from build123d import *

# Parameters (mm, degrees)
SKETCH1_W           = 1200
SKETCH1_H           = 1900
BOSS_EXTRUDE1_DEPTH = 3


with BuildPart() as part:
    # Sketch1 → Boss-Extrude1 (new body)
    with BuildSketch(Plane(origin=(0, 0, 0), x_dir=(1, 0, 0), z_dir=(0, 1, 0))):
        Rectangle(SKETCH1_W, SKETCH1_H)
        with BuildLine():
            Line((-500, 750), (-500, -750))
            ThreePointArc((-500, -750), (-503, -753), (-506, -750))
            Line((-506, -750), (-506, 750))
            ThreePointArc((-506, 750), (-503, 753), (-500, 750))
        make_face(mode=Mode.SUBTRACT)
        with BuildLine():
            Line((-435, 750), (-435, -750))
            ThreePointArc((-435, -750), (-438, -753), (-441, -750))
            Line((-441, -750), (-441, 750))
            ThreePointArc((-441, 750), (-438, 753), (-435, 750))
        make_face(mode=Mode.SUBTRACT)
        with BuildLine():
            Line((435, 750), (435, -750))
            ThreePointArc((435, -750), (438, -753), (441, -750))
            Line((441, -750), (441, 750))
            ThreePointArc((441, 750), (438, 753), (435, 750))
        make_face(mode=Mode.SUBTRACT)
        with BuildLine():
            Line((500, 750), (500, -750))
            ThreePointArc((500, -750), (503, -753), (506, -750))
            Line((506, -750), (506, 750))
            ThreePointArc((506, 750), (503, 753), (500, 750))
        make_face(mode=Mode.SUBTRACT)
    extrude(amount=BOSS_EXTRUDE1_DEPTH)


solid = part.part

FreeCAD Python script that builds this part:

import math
import FreeCAD as App
import Part
import Sketcher


def add_polygon(sketch, points):
    """Adds a closed chain of lines whose ends are joined by coincident constraints."""
    first, n = sketch.GeometryCount, len(points)
    for a, b in zip(points, points[1:] + points[:1]):
        sketch.addGeometry(Part.LineSegment(App.Vector(*a, 0), App.Vector(*b, 0)), False)
    for i in range(n):
        sketch.addConstraint(Sketcher.Constraint("Coincident", first + i, 2, first + (i + 1) % n, 1))

doc = App.newDocument("Part")
body = doc.addObject("PartDesign::Body", "Body")

# Sketch on XZ plane
sketch1 = body.newObject("Sketcher::SketchObject", "Sketch")
sketch1.AttachmentSupport = (doc.getObject("XZ_Plane"), [""])
sketch1.MapMode = "FlatFace"
add_polygon(sketch1, [(-600, -950), (-600, 950), (600, 950), (600, -950)])  # lines 0-3
sketch1.addGeometry(Part.ArcOfCircle(Part.Circle(App.Vector(-503, -750, 0), App.Vector(0, 0, 1), 3), math.radians(180), math.radians(360)), False)  # 4
sketch1.addGeometry(Part.LineSegment(App.Vector(-500, -750, 0), App.Vector(-500, 750, 0)), False)  # 5
sketch1.addGeometry(Part.ArcOfCircle(Part.Circle(App.Vector(-503, 750, 0), App.Vector(0, 0, 1), 3), math.radians(0), math.radians(180)), False)  # 6
sketch1.addGeometry(Part.LineSegment(App.Vector(-506, 750, 0), App.Vector(-506, -750, 0)), False)  # 7
sketch1.addGeometry(Part.ArcOfCircle(Part.Circle(App.Vector(-438, -750, 0), App.Vector(0, 0, 1), 3), math.radians(180), math.radians(360)), False)  # 8
sketch1.addGeometry(Part.LineSegment(App.Vector(-435, -750, 0), App.Vector(-435, 750, 0)), False)  # 9
sketch1.addGeometry(Part.ArcOfCircle(Part.Circle(App.Vector(-438, 750, 0), App.Vector(0, 0, 1), 3), math.radians(0), math.radians(180)), False)  # 10
sketch1.addGeometry(Part.LineSegment(App.Vector(-441, 750, 0), App.Vector(-441, -750, 0)), False)  # 11
sketch1.addGeometry(Part.LineSegment(App.Vector(435, 750, 0), App.Vector(435, -750, 0)), False)  # 12
sketch1.addGeometry(Part.ArcOfCircle(Part.Circle(App.Vector(438, -750, 0), App.Vector(0, 0, 1), 3), math.radians(180), math.radians(360)), False)  # 13
sketch1.addGeometry(Part.LineSegment(App.Vector(441, -750, 0), App.Vector(441, 750, 0)), False)  # 14
sketch1.addGeometry(Part.ArcOfCircle(Part.Circle(App.Vector(438, 750, 0), App.Vector(0, 0, 1), 3), math.radians(0), math.radians(180)), False)  # 15
sketch1.addGeometry(Part.LineSegment(App.Vector(500, 750, 0), App.Vector(500, -750, 0)), False)  # 16
sketch1.addGeometry(Part.ArcOfCircle(Part.Circle(App.Vector(503, -750, 0), App.Vector(0, 0, 1), 3), math.radians(180), math.radians(360)), False)  # 17
sketch1.addGeometry(Part.LineSegment(App.Vector(506, -750, 0), App.Vector(506, 750, 0)), False)  # 18
sketch1.addGeometry(Part.ArcOfCircle(Part.Circle(App.Vector(503, 750, 0), App.Vector(0, 0, 1), 3), math.radians(0), math.radians(180)), False)  # 19
sketch1.addConstraint([
    Sketcher.Constraint("Tangent", 4, 2, 5, 1),
    Sketcher.Constraint("Tangent", 5, 2, 6, 1),
    Sketcher.Constraint("Tangent", 6, 2, 7, 1),
    Sketcher.Constraint("Tangent", 7, 2, 4, 1),
    Sketcher.Constraint("Tangent", 8, 2, 9, 1),
    Sketcher.Constraint("Tangent", 9, 2, 10, 1),
    Sketcher.Constraint("Tangent", 10, 2, 11, 1),
    Sketcher.Constraint("Tangent", 11, 2, 8, 1),
    Sketcher.Constraint("Tangent", 12, 2, 13, 1),
    Sketcher.Constraint("Tangent", 13, 2, 14, 1),
    Sketcher.Constraint("Tangent", 14, 2, 15, 1),
    Sketcher.Constraint("Tangent", 15, 2, 12, 1),
    Sketcher.Constraint("Tangent", 16, 2, 17, 1),
    Sketcher.Constraint("Tangent", 17, 2, 18, 1),
    Sketcher.Constraint("Tangent", 18, 2, 19, 1),
    Sketcher.Constraint("Tangent", 19, 2, 16, 1),
    Sketcher.Constraint("Vertical", 0),
    Sketcher.Constraint("Horizontal", 1),
    Sketcher.Constraint("Vertical", 2),
    Sketcher.Constraint("Horizontal", 3),
    Sketcher.Constraint("Vertical", 5),
    Sketcher.Constraint("Vertical", 7),
    Sketcher.Constraint("Vertical", 9),
    Sketcher.Constraint("Vertical", 11),
    Sketcher.Constraint("Vertical", 12),
    Sketcher.Constraint("Vertical", 14),
    Sketcher.Constraint("Vertical", 16),
    Sketcher.Constraint("Vertical", 18),
    Sketcher.Constraint("Equal", 6, 8),
    Sketcher.Constraint("Equal", 10, 13),
    Sketcher.Constraint("Equal", 15, 17),
    Sketcher.Constraint("Symmetric", 10, 3, 13, 3, -1, 1),
    Sketcher.Constraint("Symmetric", 6, 3, 17, 3, -1, 1),
    Sketcher.Constraint("Symmetric", 0, 2, 2, 2, -1, 1),
    Sketcher.Constraint("Horizontal", 4, 3, 8, 3),
    Sketcher.Constraint("Horizontal", 6, 3, 10, 3),
    Sketcher.Constraint("Horizontal", 8, 3, 13, 3),
    Sketcher.Constraint("Horizontal", 10, 3, 15, 3),
    Sketcher.Constraint("Horizontal", 15, 3, 19, 3),
    Sketcher.Constraint("Radius", 4, 3.0),
    Sketcher.Constraint("DistanceX", 1, 1, 1, 2, 1200.0),
    Sketcher.Constraint("DistanceY", 0, 1, 0, 2, 1900.0),
    Sketcher.Constraint("DistanceY", 5, 1, 5, 2, 1500.0),
    Sketcher.Constraint("DistanceX", 4, 3, -1, 1, 503.0),
    Sketcher.Constraint("DistanceX", 8, 3, -1, 1, 438.0),
])
pad1 = body.newObject("PartDesign::Pad", "Pad")
pad1.Profile = sketch1
pad1.Length = 3
pad1.Reversed = True

doc.recompute()
